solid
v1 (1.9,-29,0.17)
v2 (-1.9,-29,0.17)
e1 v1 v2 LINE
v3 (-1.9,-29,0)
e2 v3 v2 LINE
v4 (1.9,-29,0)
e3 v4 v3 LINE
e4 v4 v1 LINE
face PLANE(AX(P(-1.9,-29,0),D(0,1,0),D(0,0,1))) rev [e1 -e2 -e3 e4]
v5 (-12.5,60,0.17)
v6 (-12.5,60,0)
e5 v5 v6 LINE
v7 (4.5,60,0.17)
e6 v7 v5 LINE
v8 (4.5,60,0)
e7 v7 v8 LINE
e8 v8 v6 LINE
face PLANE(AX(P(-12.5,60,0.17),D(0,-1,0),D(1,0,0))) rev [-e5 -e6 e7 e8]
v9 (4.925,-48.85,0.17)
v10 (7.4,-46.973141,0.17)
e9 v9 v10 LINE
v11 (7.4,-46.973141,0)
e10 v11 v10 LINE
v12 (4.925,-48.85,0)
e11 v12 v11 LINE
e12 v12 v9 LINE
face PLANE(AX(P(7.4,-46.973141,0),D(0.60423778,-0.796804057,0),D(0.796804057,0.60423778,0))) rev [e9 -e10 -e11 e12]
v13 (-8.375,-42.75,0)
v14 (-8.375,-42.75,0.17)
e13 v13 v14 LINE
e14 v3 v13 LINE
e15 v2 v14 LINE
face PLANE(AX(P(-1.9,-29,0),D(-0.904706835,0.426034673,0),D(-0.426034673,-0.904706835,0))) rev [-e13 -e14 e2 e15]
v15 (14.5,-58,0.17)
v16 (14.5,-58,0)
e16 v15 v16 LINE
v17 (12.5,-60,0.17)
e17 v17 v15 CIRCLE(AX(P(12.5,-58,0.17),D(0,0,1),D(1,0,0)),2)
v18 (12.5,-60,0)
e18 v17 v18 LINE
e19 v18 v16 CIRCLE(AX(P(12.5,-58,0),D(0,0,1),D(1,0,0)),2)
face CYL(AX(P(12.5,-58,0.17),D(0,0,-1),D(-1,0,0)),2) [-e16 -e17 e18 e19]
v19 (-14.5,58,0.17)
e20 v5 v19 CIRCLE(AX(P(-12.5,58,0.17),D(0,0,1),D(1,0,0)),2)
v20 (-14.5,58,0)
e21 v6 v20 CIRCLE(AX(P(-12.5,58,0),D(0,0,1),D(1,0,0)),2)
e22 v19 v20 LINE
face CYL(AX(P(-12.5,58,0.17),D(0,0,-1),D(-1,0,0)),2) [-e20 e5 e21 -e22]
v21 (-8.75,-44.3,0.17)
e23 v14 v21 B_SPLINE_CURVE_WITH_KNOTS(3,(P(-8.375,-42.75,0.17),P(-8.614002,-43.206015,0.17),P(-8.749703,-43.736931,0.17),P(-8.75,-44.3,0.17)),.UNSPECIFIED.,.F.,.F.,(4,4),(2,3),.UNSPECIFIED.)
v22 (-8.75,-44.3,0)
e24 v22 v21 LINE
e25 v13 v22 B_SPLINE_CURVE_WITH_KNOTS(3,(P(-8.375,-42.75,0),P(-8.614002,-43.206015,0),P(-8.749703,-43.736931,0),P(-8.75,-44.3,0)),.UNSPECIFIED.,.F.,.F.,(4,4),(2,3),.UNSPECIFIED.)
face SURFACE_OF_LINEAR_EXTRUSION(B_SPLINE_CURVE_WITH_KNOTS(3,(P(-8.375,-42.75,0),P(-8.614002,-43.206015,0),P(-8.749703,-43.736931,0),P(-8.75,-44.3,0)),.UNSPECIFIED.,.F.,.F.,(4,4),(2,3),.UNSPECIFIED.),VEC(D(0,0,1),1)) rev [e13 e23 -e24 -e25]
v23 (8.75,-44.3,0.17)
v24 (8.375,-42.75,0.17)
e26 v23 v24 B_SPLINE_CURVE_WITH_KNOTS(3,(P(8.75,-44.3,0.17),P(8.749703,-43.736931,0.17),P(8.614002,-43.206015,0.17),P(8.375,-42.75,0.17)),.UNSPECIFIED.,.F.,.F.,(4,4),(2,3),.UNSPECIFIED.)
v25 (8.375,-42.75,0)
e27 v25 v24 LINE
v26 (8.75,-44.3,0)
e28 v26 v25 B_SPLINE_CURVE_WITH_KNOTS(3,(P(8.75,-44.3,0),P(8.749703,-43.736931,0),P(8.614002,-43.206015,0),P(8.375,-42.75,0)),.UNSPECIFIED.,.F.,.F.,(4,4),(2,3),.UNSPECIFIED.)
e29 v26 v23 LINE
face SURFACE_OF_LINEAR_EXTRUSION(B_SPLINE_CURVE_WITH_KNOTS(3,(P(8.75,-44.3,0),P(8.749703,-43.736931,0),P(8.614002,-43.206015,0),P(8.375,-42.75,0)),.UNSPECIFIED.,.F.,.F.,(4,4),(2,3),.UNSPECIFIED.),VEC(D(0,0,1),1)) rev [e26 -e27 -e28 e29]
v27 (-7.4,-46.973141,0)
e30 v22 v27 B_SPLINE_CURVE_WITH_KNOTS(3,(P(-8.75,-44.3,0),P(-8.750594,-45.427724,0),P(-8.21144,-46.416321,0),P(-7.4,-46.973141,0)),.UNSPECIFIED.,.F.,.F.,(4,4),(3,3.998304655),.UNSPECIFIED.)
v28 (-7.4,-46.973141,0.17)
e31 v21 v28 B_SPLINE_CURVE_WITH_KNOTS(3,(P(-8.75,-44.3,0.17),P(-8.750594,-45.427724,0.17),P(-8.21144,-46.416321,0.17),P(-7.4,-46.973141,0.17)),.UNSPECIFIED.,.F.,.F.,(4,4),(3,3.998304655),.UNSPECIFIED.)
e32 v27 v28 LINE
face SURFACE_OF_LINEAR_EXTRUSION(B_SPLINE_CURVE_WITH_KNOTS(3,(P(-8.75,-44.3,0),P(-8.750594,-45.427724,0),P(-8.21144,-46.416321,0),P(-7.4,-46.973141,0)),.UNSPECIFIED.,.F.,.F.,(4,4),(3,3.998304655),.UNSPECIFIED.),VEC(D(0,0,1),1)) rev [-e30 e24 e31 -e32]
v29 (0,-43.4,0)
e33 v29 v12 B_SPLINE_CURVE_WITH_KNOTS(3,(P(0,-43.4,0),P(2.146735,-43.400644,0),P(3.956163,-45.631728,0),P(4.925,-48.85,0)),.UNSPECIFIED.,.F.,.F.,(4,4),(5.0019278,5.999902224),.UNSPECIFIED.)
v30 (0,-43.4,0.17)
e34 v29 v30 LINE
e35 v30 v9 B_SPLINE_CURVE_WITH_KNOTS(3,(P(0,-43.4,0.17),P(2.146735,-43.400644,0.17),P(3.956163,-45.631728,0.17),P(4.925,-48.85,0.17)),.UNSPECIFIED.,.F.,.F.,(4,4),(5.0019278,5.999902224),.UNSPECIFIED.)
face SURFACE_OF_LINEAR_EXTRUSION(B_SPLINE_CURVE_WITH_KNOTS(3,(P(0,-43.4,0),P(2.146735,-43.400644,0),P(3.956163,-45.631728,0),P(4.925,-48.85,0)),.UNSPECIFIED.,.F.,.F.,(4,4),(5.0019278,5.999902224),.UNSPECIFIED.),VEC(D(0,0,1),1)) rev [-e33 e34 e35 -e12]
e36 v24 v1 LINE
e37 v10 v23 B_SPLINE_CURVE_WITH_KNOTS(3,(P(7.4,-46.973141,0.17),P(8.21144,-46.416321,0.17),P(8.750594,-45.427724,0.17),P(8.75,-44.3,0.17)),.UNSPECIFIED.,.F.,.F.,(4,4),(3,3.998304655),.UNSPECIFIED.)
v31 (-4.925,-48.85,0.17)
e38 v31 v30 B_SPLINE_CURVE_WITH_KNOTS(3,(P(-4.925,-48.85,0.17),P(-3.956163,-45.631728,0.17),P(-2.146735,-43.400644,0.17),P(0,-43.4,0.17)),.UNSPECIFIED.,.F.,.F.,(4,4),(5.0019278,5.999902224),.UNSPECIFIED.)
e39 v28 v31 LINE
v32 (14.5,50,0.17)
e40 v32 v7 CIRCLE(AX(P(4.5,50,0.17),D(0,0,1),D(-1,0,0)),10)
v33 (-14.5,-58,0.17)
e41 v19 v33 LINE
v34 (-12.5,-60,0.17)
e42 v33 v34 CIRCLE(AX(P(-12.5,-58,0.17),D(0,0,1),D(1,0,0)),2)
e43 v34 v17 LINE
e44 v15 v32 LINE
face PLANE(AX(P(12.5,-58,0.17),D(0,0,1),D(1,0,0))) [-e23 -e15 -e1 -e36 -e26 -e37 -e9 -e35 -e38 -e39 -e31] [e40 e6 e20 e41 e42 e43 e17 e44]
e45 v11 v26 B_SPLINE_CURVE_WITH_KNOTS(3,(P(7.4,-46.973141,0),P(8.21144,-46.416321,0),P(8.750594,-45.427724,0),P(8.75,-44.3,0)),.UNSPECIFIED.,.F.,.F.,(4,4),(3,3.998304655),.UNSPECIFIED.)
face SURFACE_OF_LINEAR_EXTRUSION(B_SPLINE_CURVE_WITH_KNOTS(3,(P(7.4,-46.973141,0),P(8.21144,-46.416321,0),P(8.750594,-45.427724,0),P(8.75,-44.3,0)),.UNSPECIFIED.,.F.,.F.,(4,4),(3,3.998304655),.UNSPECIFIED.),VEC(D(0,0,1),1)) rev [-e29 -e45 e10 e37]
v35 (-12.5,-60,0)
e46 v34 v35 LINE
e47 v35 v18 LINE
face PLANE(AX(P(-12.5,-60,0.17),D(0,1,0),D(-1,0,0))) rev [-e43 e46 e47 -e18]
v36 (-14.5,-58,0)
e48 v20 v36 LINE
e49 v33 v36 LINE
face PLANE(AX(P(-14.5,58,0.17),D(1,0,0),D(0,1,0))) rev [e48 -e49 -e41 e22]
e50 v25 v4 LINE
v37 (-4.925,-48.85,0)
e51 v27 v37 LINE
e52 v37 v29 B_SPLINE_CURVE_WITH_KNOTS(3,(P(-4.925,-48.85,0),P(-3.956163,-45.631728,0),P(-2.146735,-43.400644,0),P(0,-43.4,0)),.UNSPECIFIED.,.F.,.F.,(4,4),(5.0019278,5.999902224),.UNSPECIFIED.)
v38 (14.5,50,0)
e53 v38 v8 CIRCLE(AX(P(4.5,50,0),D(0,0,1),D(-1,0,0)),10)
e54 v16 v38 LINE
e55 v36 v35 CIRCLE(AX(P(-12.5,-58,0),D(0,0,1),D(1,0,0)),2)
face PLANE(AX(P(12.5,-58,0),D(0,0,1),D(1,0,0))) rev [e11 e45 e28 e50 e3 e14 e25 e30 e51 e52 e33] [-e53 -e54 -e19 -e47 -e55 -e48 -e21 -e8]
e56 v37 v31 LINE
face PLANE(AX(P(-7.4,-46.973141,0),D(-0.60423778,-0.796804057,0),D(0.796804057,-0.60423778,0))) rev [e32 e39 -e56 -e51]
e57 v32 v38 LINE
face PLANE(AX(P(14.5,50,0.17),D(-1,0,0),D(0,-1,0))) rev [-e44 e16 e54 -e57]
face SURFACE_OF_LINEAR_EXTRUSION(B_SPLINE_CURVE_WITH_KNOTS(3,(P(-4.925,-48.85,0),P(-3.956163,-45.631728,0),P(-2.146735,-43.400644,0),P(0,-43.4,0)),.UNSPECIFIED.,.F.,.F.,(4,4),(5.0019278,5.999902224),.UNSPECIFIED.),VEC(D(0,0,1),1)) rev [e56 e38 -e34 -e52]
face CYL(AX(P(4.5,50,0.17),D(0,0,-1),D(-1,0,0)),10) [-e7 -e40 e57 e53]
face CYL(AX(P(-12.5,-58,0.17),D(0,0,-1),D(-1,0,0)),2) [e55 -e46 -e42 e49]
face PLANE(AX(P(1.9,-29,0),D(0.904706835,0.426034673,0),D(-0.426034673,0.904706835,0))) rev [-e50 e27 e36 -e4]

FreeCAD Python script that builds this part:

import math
import FreeCAD as App
import Part
import Sketcher
from FreeCAD import Vector

doc = App.newDocument("Part")
body = doc.addObject("PartDesign::Body", "Body")

# Sketch on XY plane
sketch1 = doc.addObject("Sketcher::SketchObject", "Sketch")
body.addObject(sketch1)
sketch1.AttachmentSupport = (doc.XY_Plane, [""])
sketch1.MapMode = "FlatFace"
sketch1.addGeometry([
    Part.LineSegment(Vector(4.5, 60, 0), Vector(-12.5, 60, 0)),  # 0
    Part.ArcOfCircle(Part.Circle(Vector(-12.5, 58, 0), Vector(0, 0, 1), 2), math.radians(90), math.radians(180)),  # 1
    Part.LineSegment(Vector(-14.5, 58, 0), Vector(-14.5, -58, 0)),  # 2
    Part.ArcOfCircle(Part.Circle(Vector(-12.5, -58, 0), Vector(0, 0, 1), 2), math.radians(-180), math.radians(-90)),  # 3
    Part.LineSegment(Vector(-12.5, -60, 0), Vector(12.5, -60, 0)),  # 4
    Part.ArcOfCircle(Part.Circle(Vector(12.5, -58, 0), Vector(0, 0, 1), 2), math.radians(-90), math.radians(0)),  # 5
    Part.LineSegment(Vector(14.5, -58, 0), Vector(14.5, 50, 0)),  # 6
    Part.ArcOfCircle(Part.Circle(Vector(4.5, 50, 0), Vector(0, 0, 1), 10), math.radians(0), math.radians(90)),  # 7
], False)
sketch1.addConstraint([
    Sketcher.Constraint("Tangent", 0, 2, 1, 1),
    Sketcher.Constraint("Tangent", 1, 2, 2, 1),
    Sketcher.Constraint("Tangent", 2, 2, 3, 1),
    Sketcher.Constraint("Tangent", 3, 2, 4, 1),
    Sketcher.Constraint("Tangent", 4, 2, 5, 1),
    Sketcher.Constraint("Tangent", 5, 2, 6, 1),
    Sketcher.Constraint("Tangent", 6, 2, 7, 1),
    Sketcher.Constraint("Tangent", 7, 2, 0, 1),
    Sketcher.Constraint("Horizontal", 0),
    Sketcher.Constraint("Vertical", 2),
    Sketcher.Constraint("Horizontal", 4),
    Sketcher.Constraint("Vertical", 6),
    Sketcher.Constraint("Equal", 1, 3),
    Sketcher.Constraint("Equal", 3, 5),
    Sketcher.Constraint("Symmetric", 1, 3, 5, 3, -1, 1),
    Sketcher.Constraint("Radius", 1, 2.0),
    Sketcher.Constraint("Radius", 7, 10.0),
    Sketcher.Constraint("DistanceX", 0, 2, 0, 1, 17.0),
    Sketcher.Constraint("DistanceY", 2, 2, 2, 1, 116.0),
])
pad1 = doc.addObject("PartDesign::Pad", "Pad")
body.addObject(pad1)
pad1.Profile = sketch1
pad1.Length = 0.17

# Sketch on XY plane
sketch2 = doc.addObject("Sketcher::SketchObject", "Sketch001")
body.addObject(sketch2)
sketch2.AttachmentSupport = (doc.XY_Plane, [""])
sketch2.MapMode = "FlatFace"
sketch2.AttachmentOffset = App.Placement(Vector(0, 0, 0.17), App.Rotation())
sketch2.addGeometry([
    Part.LineSegment(Vector(1.9, -29, 0), Vector(-1.9, -29, 0)),  # 0
    Part.LineSegment(Vector(-1.9, -29, 0), Vector(-8.375, -42.75, 0)),  # 1
    Part.BSplineCurve([Vector(-8.375, -42.75, 0), Vector(-8.614002, -43.206015, 0), Vector(-8.749703, -43.736931, 0), Vector(-8.75, -44.3, 0)], [4, 4], [2, 3], False, 3, [1, 1, 1, 1], False),  # 2
    Part.BSplineCurve([Vector(-8.75, -44.3, 0), Vector(-8.750594, -45.427724, 0), Vector(-8.21144, -46.416321, 0), Vector(-7.4, -46.973141, 0)], [4, 4], [3, 3.998304655], False, 3, [1, 1, 1, 1], False),  # 3
    Part.LineSegment(Vector(-7.4, -46.973141, 0), Vector(-4.925, -48.85, 0)),  # 4
    Part.BSplineCurve([Vector(-4.925, -48.85, 0), Vector(-3.956163, -45.631728, 0), Vector(-2.146735, -43.400644, 0), Vector(0, -43.4, 0)], [4, 4], [5.0019278, 5.999902224], False, 3, [1, 1, 1, 1], False),  # 5
    Part.BSplineCurve([Vector(4.925, -48.85, 0), Vector(3.956163, -45.631728, 0), Vector(2.146735, -43.400644, 0), Vector(0, -43.4, 0)], [4, 4], [5.0019278, 5.999902224], False, 3, [1, 1, 1, 1], False),  # 6
    Part.LineSegment(Vector(4.925, -48.85, 0), Vector(7.4, -46.973141, 0)),  # 7
    Part.BSplineCurve([Vector(8.75, -44.3, 0), Vector(8.750594, -45.427724, 0), Vector(8.21144, -46.416321, 0), Vector(7.4, -46.973141, 0)], [4, 4], [3, 3.998304655], False, 3, [1, 1, 1, 1], False),  # 8
    Part.BSplineCurve([Vector(8.375, -42.75, 0), Vector(8.614002, -43.206015, 0), Vector(8.749703, -43.736931, 0), Vector(8.75, -44.3, 0)], [4, 4], [2, 3], False, 3, [1, 1, 1, 1], False),  # 9
    Part.LineSegment(Vector(8.375, -42.75, 0), Vector(1.9, -29, 0)),  # 10
], False)
sketch2.addConstraint([
    Sketcher.Constraint("Block", 2),
    Sketcher.Constraint("Block", 3),
    Sketcher.Constraint("Block", 5),
    Sketcher.Constraint("Block", 6),
    Sketcher.Constraint("Block", 8),
    Sketcher.Constraint("Block", 9),
    Sketcher.Constraint("Coincident", 0, 2, 1, 1),
    Sketcher.Constraint("Coincident", 1, 2, 2, 1),
    Sketcher.Constraint("Coincident", 3, 2, 4, 1),
    Sketcher.Constraint("Coincident", 4, 2, 5, 1),
    Sketcher.Constraint("Coincident", 6, 1, 7, 1),
    Sketcher.Constraint("Coincident", 7, 2, 8, 2),
    Sketcher.Constraint("Coincident", 9, 1, 10, 1),
    Sketcher.Constraint("Coincident", 10, 2, 0, 1),
    Sketcher.Constraint("Horizontal", 0),
    Sketcher.Constraint("Equal", 1, 10),
    Sketcher.Constraint("DistanceX", 0, 2, 0, 1, 3.8),
    Sketcher.Constraint("DistanceY", 0, 2, -1, 1, 29.0),
])
pocket1 = doc.addObject("PartDesign::Pocket", "Pocket")
body.addObject(pocket1)
pocket1.Profile = sketch2
pocket1.Type = "ThroughAll"

doc.recompute()
